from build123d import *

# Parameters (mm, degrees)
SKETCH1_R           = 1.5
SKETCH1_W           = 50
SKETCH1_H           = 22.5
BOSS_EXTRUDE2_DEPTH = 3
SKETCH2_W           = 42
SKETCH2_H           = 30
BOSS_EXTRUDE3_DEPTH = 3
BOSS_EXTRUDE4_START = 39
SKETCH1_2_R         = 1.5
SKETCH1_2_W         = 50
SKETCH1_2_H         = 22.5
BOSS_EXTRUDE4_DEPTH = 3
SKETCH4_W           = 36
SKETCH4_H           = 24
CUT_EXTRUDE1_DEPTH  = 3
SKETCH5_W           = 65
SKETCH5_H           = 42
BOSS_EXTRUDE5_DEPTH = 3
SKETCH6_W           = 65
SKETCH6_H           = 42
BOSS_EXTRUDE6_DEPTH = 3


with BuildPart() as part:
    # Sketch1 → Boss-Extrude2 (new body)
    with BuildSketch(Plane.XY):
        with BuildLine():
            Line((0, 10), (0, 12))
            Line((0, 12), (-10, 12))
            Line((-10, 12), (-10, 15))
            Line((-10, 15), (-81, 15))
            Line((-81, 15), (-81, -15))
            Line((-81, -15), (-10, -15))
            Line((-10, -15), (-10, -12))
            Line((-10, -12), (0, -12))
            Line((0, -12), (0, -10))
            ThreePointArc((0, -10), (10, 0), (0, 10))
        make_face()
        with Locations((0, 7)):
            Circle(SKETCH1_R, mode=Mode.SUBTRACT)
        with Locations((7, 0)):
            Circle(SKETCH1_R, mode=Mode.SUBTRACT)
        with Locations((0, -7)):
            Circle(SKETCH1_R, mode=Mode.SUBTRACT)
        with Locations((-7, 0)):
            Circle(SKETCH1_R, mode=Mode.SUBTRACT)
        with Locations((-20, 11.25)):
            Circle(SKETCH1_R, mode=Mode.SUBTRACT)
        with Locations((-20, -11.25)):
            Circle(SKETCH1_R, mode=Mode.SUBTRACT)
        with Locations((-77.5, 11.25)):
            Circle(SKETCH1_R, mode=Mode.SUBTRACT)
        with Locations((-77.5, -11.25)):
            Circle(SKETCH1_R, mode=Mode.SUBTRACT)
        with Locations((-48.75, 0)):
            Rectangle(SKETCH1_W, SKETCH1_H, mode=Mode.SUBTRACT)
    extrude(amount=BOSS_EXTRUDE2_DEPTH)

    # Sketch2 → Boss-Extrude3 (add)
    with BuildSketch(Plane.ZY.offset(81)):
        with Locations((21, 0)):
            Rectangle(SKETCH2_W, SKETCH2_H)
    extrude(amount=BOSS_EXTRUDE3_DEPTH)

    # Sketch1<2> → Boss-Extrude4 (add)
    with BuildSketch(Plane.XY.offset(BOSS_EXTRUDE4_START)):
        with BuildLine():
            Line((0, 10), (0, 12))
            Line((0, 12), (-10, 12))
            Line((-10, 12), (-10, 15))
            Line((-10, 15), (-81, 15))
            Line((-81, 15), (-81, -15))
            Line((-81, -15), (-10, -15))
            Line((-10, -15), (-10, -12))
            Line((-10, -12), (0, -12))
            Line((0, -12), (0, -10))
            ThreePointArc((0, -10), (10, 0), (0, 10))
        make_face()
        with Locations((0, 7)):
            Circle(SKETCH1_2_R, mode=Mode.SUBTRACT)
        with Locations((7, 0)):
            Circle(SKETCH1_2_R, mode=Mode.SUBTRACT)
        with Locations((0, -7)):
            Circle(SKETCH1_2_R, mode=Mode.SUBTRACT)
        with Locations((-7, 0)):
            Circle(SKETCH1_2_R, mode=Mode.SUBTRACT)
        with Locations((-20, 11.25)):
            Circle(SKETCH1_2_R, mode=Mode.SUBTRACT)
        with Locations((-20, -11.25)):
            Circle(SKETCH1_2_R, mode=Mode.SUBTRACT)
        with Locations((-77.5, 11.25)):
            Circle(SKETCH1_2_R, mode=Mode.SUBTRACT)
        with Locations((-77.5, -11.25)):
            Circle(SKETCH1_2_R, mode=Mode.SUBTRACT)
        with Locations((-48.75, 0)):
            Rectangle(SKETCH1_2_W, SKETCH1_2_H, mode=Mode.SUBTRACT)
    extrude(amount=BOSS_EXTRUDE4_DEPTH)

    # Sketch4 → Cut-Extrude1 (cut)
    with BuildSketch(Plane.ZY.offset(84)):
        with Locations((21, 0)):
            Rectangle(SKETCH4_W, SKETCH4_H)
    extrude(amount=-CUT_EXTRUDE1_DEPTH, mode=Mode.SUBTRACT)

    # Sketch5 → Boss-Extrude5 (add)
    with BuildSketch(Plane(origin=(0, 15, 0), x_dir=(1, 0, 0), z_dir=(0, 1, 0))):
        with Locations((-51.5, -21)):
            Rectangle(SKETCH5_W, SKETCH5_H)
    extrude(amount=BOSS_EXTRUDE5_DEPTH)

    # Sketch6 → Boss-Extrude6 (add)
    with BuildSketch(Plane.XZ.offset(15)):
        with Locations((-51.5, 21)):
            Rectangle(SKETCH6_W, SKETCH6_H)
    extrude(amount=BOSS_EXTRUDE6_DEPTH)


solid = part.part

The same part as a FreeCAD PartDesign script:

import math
import FreeCAD as App
import Part
import Sketcher

V = App.Vector
Q = App.Units.Quantity


def add_polygon(sketch, points):
    """Adds a closed chain of lines whose ends are joined by coincident constraints."""
    first, n = sketch.GeometryCount, len(points)
    for a, b in zip(points, points[1:] + points[:1]):
        sketch.addGeometry(Part.LineSegment(App.Vector(*a, 0), App.Vector(*b, 0)), False)
    for i in range(n):
        sketch.addConstraint(Sketcher.Constraint("Coincident", first + i, 2, first + (i + 1) % n, 1))

doc = App.newDocument("Part")
body = doc.addObject("PartDesign::Body", "Body")

# Sketch on XY plane
sketch1 = doc.addObject("Sketcher::SketchObject", "Sketch")
body.addObject(sketch1)
sketch1.AttachmentSupport = (doc.XY_Plane, [""])
sketch1.MapMode = "FlatFace"
sketch1.addGeometry(Part.LineSegment(V(0, 10, 0), V(0, 12, 0)), False)  # 0
sketch1.addGeometry(Part.LineSegment(V(0, 12, 0), V(-10, 12, 0)), False)  # 1
sketch1.addGeometry(Part.LineSegment(V(-10, 12, 0), V(-10, 15, 0)), False)  # 2
sketch1.addGeometry(Part.LineSegment(V(-10, 15, 0), V(-81, 15, 0)), False)  # 3
sketch1.addGeometry(Part.LineSegment(V(-81, 15, 0), V(-81, -15, 0)), False)  # 4
sketch1.addGeometry(Part.LineSegment(V(-81, -15, 0), V(-10, -15, 0)), False)  # 5
sketch1.addGeometry(Part.LineSegment(V(-10, -15, 0), V(-10, -12, 0)), False)  # 6
sketch1.addGeometry(Part.LineSegment(V(-10, -12, 0), V(0, -12, 0)), False)  # 7
sketch1.addGeometry(Part.LineSegment(V(0, -12, 0), V(0, -10, 0)), False)  # 8
sketch1.addGeometry(Part.ArcOfCircle(Part.Circle(V(0, 0, 0), V(0, 0, 1), 10), math.radians(-90), math.radians(90)), False)  # 9
sketch1.addGeometry(Part.Circle(V(-77.5, -11.2, 0), V(0, 0, 1), 1.5), False)  # 10
sketch1.addGeometry(Part.Circle(V(-20, -11.2, 0), V(0, 0, 1), 1.5), False)  # 11
sketch1.addGeometry(Part.Circle(V(0, -7, 0), V(0, 0, 1), 1.5), False)  # 12
add_polygon(sketch1, [(-23.8, -11.2), (-73.8, -11.2), (-73.8, 11.2), (-23.8, 11.2)])  # lines 13-16
sketch1.addGeometry(Part.Circle(V(-77.5, 11.2, 0), V(0, 0, 1), 1.5), False)  # 17
sketch1.addGeometry(Part.Circle(V(-7, 0, 0), V(0, 0, 1), 1.5), False)  # 18
sketch1.addGeometry(Part.Circle(V(7, 0, 0), V(0, 0, 1), 1.5), False)  # 19
sketch1.addGeometry(Part.Circle(V(-20, 11.2, 0), V(0, 0, 1), 1.5), False)  # 20
sketch1.addGeometry(Part.Circle(V(0, 7, 0), V(0, 0, 1), 1.5), False)  # 21
sketch1.addConstraint([
    Sketcher.Constraint("Coincident", 0, 2, 1, 1),
    Sketcher.Constraint("Coincident", 1, 2, 2, 1),
    Sketcher.Constraint("Coincident", 2, 2, 3, 1),
    Sketcher.Constraint("Coincident", 3, 2, 4, 1),
    Sketcher.Constraint("Coincident", 4, 2, 5, 1),
    Sketcher.Constraint("Coincident", 5, 2, 6, 1),
    Sketcher.Constraint("Coincident", 6, 2, 7, 1),
    Sketcher.Constraint("Coincident", 7, 2, 8, 1),
    Sketcher.Constraint("Coincident", 8, 2, 9, 1),
    Sketcher.Constraint("Coincident", 9, 2, 0, 1),
    Sketcher.Constraint("Vertical", 0),
    Sketcher.Constraint("Horizontal", 1),
    Sketcher.Constraint("Vertical", 2),
    Sketcher.Constraint("Horizontal", 3),
    Sketcher.Constraint("Vertical", 4),
    Sketcher.Constraint("Horizontal", 5),
    Sketcher.Constraint("Vertical", 6),
    Sketcher.Constraint("Horizontal", 7),
    Sketcher.Constraint("Vertical", 8),
    Sketcher.Constraint("Horizontal", 13),
    Sketcher.Constraint("Vertical", 14),
    Sketcher.Constraint("Horizontal", 15),
    Sketcher.Constraint("Vertical", 16),
    Sketcher.Constraint("Coincident", 9, 3, -1, 1),
    Sketcher.Constraint("Equal", 10, 11),
    Sketcher.Constraint("Equal", 11, 12),
    Sketcher.Constraint("Equal", 12, 17),
    Sketcher.Constraint("Equal", 17, 18),
    Sketcher.Constraint("Equal", 18, 19),
    Sketcher.Constraint("Equal", 19, 20),
    Sketcher.Constraint("Equal", 20, 21),
    Sketcher.Constraint("Symmetric", 18, 3, 19, 3, -1, 1),
    Sketcher.Constraint("Symmetric", 12, 3, 21, 3, -1, 1),
    Sketcher.Constraint("Symmetric", 0, 2, 7, 2, -1, 1),
    Sketcher.Constraint("Symmetric", 10, 3, 17, 3, -1),
    Sketcher.Constraint("Symmetric", 11, 3, 20, 3, -1),
    Sketcher.Constraint("Symmetric", 2, 2, 5, 2, -1),
    Sketcher.Constraint("PointOnObject", 12, 3, -2),
    Sketcher.Constraint("PointOnObject", 18, 3, -1),
    Sketcher.Constraint("PointOnObject", 0, 2, -2),
    Sketcher.Constraint("Horizontal", 10, 3, 11, 3),
    Sketcher.Constraint("Horizontal", 11, 3, 13, 2),
    Sketcher.Constraint("Horizontal", 20, 3, 14, 2),
    Sketcher.Constraint("Diameter", 10, Q("3 mm")),
    Sketcher.Constraint("Radius", 9, Q("10 mm")),
    Sketcher.Constraint("DistanceX", 1, 2, 1, 1, Q("10 mm")),
    Sketcher.Constraint("DistanceX", 3, 2, 3, 1, Q("71 mm")),
    Sketcher.Constraint("DistanceX", 13, 2, 13, 1, Q("50 mm")),
    Sketcher.Constraint("DistanceY", 0, 1, 0, 2, Q("2 mm")),
    Sketcher.Constraint("DistanceY", 2, 1, 2, 2, Q("3 mm")),
    Sketcher.Constraint("DistanceY", 14, 1, 14, 2, Q("22.5 mm")),
    Sketcher.Constraint("DistanceX", 11, 3, -1, 1, Q("20 mm")),
    Sketcher.Constraint("DistanceY", 12, 3, -1, 1, Q("7 mm")),
    Sketcher.Constraint("DistanceX", 18, 3, -1, 1, Q("7 mm")),
    Sketcher.Constraint("DistanceX", 10, 3, -1, 1, Q("77.5 mm")),
    Sketcher.Constraint("DistanceX", 13, 2, -1, 1, Q("73.75 mm")),
])
pad1 = doc.addObject("PartDesign::Pad", "Pad")
body.addObject(pad1)
pad1.Profile = sketch1
pad1.Length = 3

# Sketch on YZ plane
sketch2 = doc.addObject("Sketcher::SketchObject", "Sketch001")
body.addObject(sketch2)
sketch2.AttachmentSupport = (doc.YZ_Plane, [""])
sketch2.MapMode = "FlatFace"
sketch2.AttachmentOffset = App.Placement(V(0, 0, -81), App.Rotation())
add_polygon(sketch2, [(15, 0), (-15, 0), (-15, 42), (15, 42)])  # lines 0-3
sketch2.addConstraint([
    Sketcher.Constraint("Horizontal", 0),
    Sketcher.Constraint("Vertical", 1),
    Sketcher.Constraint("Horizontal", 2),
    Sketcher.Constraint("Vertical", 3),
    Sketcher.Constraint("Symmetric", 0, 2, 3, 2, -1, 1),
    Sketcher.Constraint("DistanceX", 0, 2, 0, 1, Q("30 mm")),
    Sketcher.Constraint("DistanceY", 1, 1, 1, 2, Q("42 mm")),
])
pad2 = doc.addObject("PartDesign::Pad", "Pad001")
body.addObject(pad2)
pad2.Profile = sketch2
pad2.Length = 3
pad2.Reversed = True

# Sketch on XY plane
sketch3 = doc.addObject("Sketcher::SketchObject", "Sketch002")
body.addObject(sketch3)
sketch3.AttachmentSupport = (doc.XY_Plane, [""])
sketch3.MapMode = "FlatFace"
sketch3.AttachmentOffset = App.Placement(V(0, 0, 39), App.Rotation())
sketch3.addGeometry(Part.LineSegment(V(0, 10, 0), V(0, 12, 0)), False)  # 0
sketch3.addGeometry(Part.LineSegment(V(0, 12, 0), V(-10, 12, 0)), False)  # 1
sketch3.addGeometry(Part.LineSegment(V(-10, 12, 0), V(-10, 15, 0)), False)  # 2
sketch3.addGeometry(Part.LineSegment(V(-10, 15, 0), V(-81, 15, 0)), False)  # 3
sketch3.addGeometry(Part.LineSegment(V(-81, 15, 0), V(-81, -15, 0)), False)  # 4
sketch3.addGeometry(Part.LineSegment(V(-81, -15, 0), V(-10, -15, 0)), False)  # 5
sketch3.addGeometry(Part.LineSegment(V(-10, -15, 0), V(-10, -12, 0)), False)  # 6
sketch3.addGeometry(Part.LineSegment(V(-10, -12, 0), V(0, -12, 0)), False)  # 7
sketch3.addGeometry(Part.LineSegment(V(0, -12, 0), V(0, -10, 0)), False)  # 8
sketch3.addGeometry(Part.ArcOfCircle(Part.Circle(V(0, 0, 0), V(0, 0, 1), 10), math.radians(-90), math.radians(90)), False)  # 9
sketch3.addGeometry(Part.Circle(V(-77.5, -11.2, 0), V(0, 0, 1), 1.5), False)  # 10
sketch3.addGeometry(Part.Circle(V(-20, -11.2, 0), V(0, 0, 1), 1.5), False)  # 11
sketch3.addGeometry(Part.Circle(V(0, -7, 0), V(0, 0, 1), 1.5), False)  # 12
add_polygon(sketch3, [(-23.8, -11.2), (-73.8, -11.2), (-73.8, 11.2), (-23.8, 11.2)])  # lines 13-16
sketch3.addGeometry(Part.Circle(V(-77.5, 11.2, 0), V(0, 0, 1), 1.5), False)  # 17
sketch3.addGeometry(Part.Circle(V(-7, 0, 0), V(0, 0, 1), 1.5), False)  # 18
sketch3.addGeometry(Part.Circle(V(7, 0, 0), V(0, 0, 1), 1.5), False)  # 19
sketch3.addGeometry(Part.Circle(V(-20, 11.2, 0), V(0, 0, 1), 1.5), False)  # 20
sketch3.addGeometry(Part.Circle(V(0, 7, 0), V(0, 0, 1), 1.5), False)  # 21
sketch3.addConstraint([
    Sketcher.Constraint("Coincident", 0, 2, 1, 1),
    Sketcher.Constraint("Coincident", 1, 2, 2, 1),
    Sketcher.Constraint("Coincident", 2, 2, 3, 1),
    Sketcher.Constraint("Coincident", 3, 2, 4, 1),
    Sketcher.Constraint("Coincident", 4, 2, 5, 1),
    Sketcher.Constraint("Coincident", 5, 2, 6, 1),
    Sketcher.Constraint("Coincident", 6, 2, 7, 1),
    Sketcher.Constraint("Coincident", 7, 2, 8, 1),
    Sketcher.Constraint("Coincident", 8, 2, 9, 1),
    Sketcher.Constraint("Coincident", 9, 2, 0, 1),
    Sketcher.Constraint("Vertical", 0),
    Sketcher.Constraint("Horizontal", 1),
    Sketcher.Constraint("Vertical", 2),
    Sketcher.Constraint("Horizontal", 3),
    Sketcher.Constraint("Vertical", 4),
    Sketcher.Constraint("Horizontal", 5),
    Sketcher.Constraint("Vertical", 6),
    Sketcher.Constraint("Horizontal", 7),
    Sketcher.Constraint("Vertical", 8),
    Sketcher.Constraint("Horizontal", 13),
    Sketcher.Constraint("Vertical", 14),
    Sketcher.Constraint("Horizontal", 15),
    Sketcher.Constraint("Vertical", 16),
    Sketcher.Constraint("Coincident", 9, 3, -1, 1),
    Sketcher.Constraint("Equal", 10, 11),
    Sketcher.Constraint("Equal", 11, 12),
    Sketcher.Constraint("Equal", 12, 17),
    Sketcher.Constraint("Equal", 17, 18),
    Sketcher.Constraint("Equal", 18, 19),
    Sketcher.Constraint("Equal", 19, 20),
    Sketcher.Constraint("Equal", 20, 21),
    Sketcher.Constraint("Symmetric", 18, 3, 19, 3, -1, 1),
    Sketcher.Constraint("Symmetric", 12, 3, 21, 3, -1, 1),
    Sketcher.Constraint("Symmetric", 0, 2, 7, 2, -1, 1),
    Sketcher.Constraint("Symmetric", 10, 3, 17, 3, -1),
    Sketcher.Constraint("Symmetric", 11, 3, 20, 3, -1),
    Sketcher.Constraint("Symmetric", 2, 2, 5, 2, -1),
    Sketcher.Constraint("PointOnObject", 12, 3, -2),
    Sketcher.Constraint("PointOnObject", 18, 3, -1),
    Sketcher.Constraint("PointOnObject", 0, 2, -2),
    Sketcher.Constraint("Horizontal", 10, 3, 11, 3),
    Sketcher.Constraint("Horizontal", 11, 3, 13, 2),
    Sketcher.Constraint("Horizontal", 20, 3, 14, 2),
    Sketcher.Constraint("Diameter", 10, Q("3 mm")),
    Sketcher.Constraint("Radius", 9, Q("10 mm")),
    Sketcher.Constraint("DistanceX", 1, 2, 1, 1, Q("10 mm")),
    Sketcher.Constraint("DistanceX", 3, 2, 3, 1, Q("71 mm")),
    Sketcher.Constraint("DistanceX", 13, 2, 13, 1, Q("50 mm")),
    Sketcher.Constraint("DistanceY", 0, 1, 0, 2, Q("2 mm")),
    Sketcher.Constraint("DistanceY", 2, 1, 2, 2, Q("3 mm")),
    Sketcher.Constraint("DistanceY", 14, 1, 14, 2, Q("22.5 mm")),
    Sketcher.Constraint("DistanceX", 11, 3, -1, 1, Q("20 mm")),
    Sketcher.Constraint("DistanceY", 12, 3, -1, 1, Q("7 mm")),
    Sketcher.Constraint("DistanceX", 18, 3, -1, 1, Q("7 mm")),
    Sketcher.Constraint("DistanceX", 10, 3, -1, 1, Q("77.5 mm")),
    Sketcher.Constraint("DistanceX", 13, 2, -1, 1, Q("73.75 mm")),
])
pad3 = doc.addObject("PartDesign::Pad", "Pad002")
body.addObject(pad3)
pad3.Profile = sketch3
pad3.Length = 3

# Sketch on YZ plane
sketch4 = doc.addObject("Sketcher::SketchObject", "Sketch003")
body.addObject(sketch4)
sketch4.AttachmentSupport = (doc.YZ_Plane, [""])
sketch4.MapMode = "FlatFace"
sketch4.AttachmentOffset = App.Placement(V(0, 0, -84), App.Rotation())
add_polygon(sketch4, [(12, 3), (-12, 3), (-12, 39), (12, 39)])  # lines 0-3
sketch4.addConstraint([
    Sketcher.Constraint("Horizontal", 0),
    Sketcher.Constraint("Vertical", 1),
    Sketcher.Constraint("Horizontal", 2),
    Sketcher.Constraint("Vertical", 3),
    Sketcher.Constraint("DistanceX", 0, 2, 0, 1, Q("24 mm")),
    Sketcher.Constraint("DistanceY", 1, 1, 1, 2, Q("36 mm")),
    Sketcher.Constraint("DistanceX", 0, 2, -1, 1, Q("12 mm")),
    Sketcher.Constraint("DistanceY", -1, 1, 0, 2, Q("3 mm")),
])
pocket1 = doc.addObject("PartDesign::Pocket", "Pocket")
body.addObject(pocket1)
pocket1.Profile = sketch4
pocket1.Length = 3
pocket1.Reversed = True

# Sketch on XZ plane
sketch5 = doc.addObject("Sketcher::SketchObject", "Sketch004")
body.addObject(sketch5)
sketch5.AttachmentSupport = (doc.XZ_Plane, [""])
sketch5.MapMode = "FlatFace"
sketch5.AttachmentOffset = App.Placement(V(0, 0, -15), App.Rotation())
add_polygon(sketch5, [(-84, 0), (-84, 42), (-19, 42), (-19, 0)])  # lines 0-3
sketch5.addConstraint([
    Sketcher.Constraint("Vertical", 0),
    Sketcher.Constraint("Horizontal", 1),
    Sketcher.Constraint("Vertical", 2),
    Sketcher.Constraint("Horizontal", 3),
    Sketcher.Constraint("PointOnObject", 2, 2, -1),
    Sketcher.Constraint("DistanceX", 1, 1, 1, 2, Q("65 mm")),
    Sketcher.Constraint("DistanceY", 0, 1, 0, 2, Q("42 mm")),
    Sketcher.Constraint("DistanceX", 0, 2, -1, 1, Q("84 mm")),
])
pad4 = doc.addObject("PartDesign::Pad", "Pad003")
body.addObject(pad4)
pad4.Profile = sketch5
pad4.Length = 3
pad4.Reversed = True

# Sketch on XZ plane
sketch6 = doc.addObject("Sketcher::SketchObject", "Sketch005")
body.addObject(sketch6)
sketch6.AttachmentSupport = (doc.XZ_Plane, [""])
sketch6.MapMode = "FlatFace"
sketch6.AttachmentOffset = App.Placement(V(0, 0, 15), App.Rotation())
add_polygon(sketch6, [(-84, 42), (-84, 0), (-19, 0), (-19, 42)])  # lines 0-3
sketch6.addConstraint([
    Sketcher.Constraint("Vertical", 0),
    Sketcher.Constraint("Horizontal", 1),
    Sketcher.Constraint("Vertical", 2),
    Sketcher.Constraint("Horizontal", 3),
    Sketcher.Constraint("PointOnObject", 0, 2, -1),
    Sketcher.Constraint("DistanceX", 1, 1, 1, 2, Q("65 mm")),
    Sketcher.Constraint("DistanceY", 0, 2, 0, 1, Q("42 mm")),
    Sketcher.Constraint("DistanceX", 0, 2, -1, 1, Q("84 mm")),
])
pad5 = doc.addObject("PartDesign::Pad", "Pad004")
body.addObject(pad5)
pad5.Profile = sketch6
pad5.Length = 3

doc.recompute()
